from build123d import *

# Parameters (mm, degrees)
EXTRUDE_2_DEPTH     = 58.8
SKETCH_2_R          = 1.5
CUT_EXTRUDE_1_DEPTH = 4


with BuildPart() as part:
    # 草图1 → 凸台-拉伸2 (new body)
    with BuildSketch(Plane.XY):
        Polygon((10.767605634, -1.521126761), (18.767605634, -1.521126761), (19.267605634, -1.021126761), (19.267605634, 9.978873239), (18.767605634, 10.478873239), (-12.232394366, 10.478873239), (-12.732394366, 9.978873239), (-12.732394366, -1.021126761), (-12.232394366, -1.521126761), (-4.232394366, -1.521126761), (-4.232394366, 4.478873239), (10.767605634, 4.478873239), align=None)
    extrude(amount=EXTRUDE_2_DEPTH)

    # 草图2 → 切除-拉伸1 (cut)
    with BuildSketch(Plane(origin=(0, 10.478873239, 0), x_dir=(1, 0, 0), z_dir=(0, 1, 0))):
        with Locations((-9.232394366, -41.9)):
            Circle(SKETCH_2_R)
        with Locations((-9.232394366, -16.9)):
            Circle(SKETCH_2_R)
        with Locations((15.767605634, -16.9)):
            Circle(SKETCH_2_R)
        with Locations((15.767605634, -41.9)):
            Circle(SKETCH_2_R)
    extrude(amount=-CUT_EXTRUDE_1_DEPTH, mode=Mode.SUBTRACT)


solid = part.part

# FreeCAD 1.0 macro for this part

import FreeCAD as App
import Part
import Sketcher
Q = App.Units.Quantity

doc = App.newDocument("Part")
body = doc.addObject("PartDesign::Body", "Body")

# Sketch on XY plane
sketch1 = body.newObject("Sketcher::SketchObject", "Sketch")
sketch1.AttachmentSupport = (doc.getObject("XY_Plane"), [""])
sketch1.MapMode = "FlatFace"
sketch1.addGeometry(Part.LineSegment(App.Vector(10.767606, -1.521127, 0), App.Vector(18.767606, -1.521127, 0)), False)
sketch1.addGeometry(Part.LineSegment(App.Vector(18.767606, -1.521127, 0), App.Vector(19.267606, -1.021127, 0)), False)
sketch1.addGeometry(Part.LineSegment(App.Vector(19.267606, -1.021127, 0), App.Vector(19.267606, 9.978873, 0)), False)
sketch1.addGeometry(Part.LineSegment(App.Vector(19.267606, 9.978873, 0), App.Vector(18.767606, 10.478873, 0)), False)
sketch1.addGeometry(Part.LineSegment(App.Vector(18.767606, 10.478873, 0), App.Vector(-12.232394, 10.478873, 0)), False)
sketch1.addGeometry(Part.LineSegment(App.Vector(-12.232394, 10.478873, 0), App.Vector(-12.732394, 9.978873, 0)), False)
sketch1.addGeometry(Part.LineSegment(App.Vector(-12.732394, 9.978873, 0), App.Vector(-12.732394, -1.021127, 0)), False)
sketch1.addGeometry(Part.LineSegment(App.Vector(-12.732394, -1.021127, 0), App.Vector(-12.232394, -1.521127, 0)), False)
sketch1.addGeometry(Part.LineSegment(App.Vector(-12.232394, -1.521127, 0), App.Vector(-4.232394, -1.521127, 0)), False)
sketch1.addGeometry(Part.LineSegment(App.Vector(-4.232394, -1.521127, 0), App.Vector(-4.232394, 4.478873, 0)), False)
sketch1.addGeometry(Part.LineSegment(App.Vector(-4.232394, 4.478873, 0), App.Vector(10.767606, 4.478873, 0)), False)
sketch1.addGeometry(Part.LineSegment(App.Vector(10.767606, 4.478873, 0), App.Vector(10.767606, -1.521127, 0)), False)
sketch1.addConstraint(Sketcher.Constraint("Coincident", 0, 2, 1, 1))
sketch1.addConstraint(Sketcher.Constraint("Coincident", 1, 2, 2, 1))
sketch1.addConstraint(Sketcher.Constraint("Coincident", 2, 2, 3, 1))
sketch1.addConstraint(Sketcher.Constraint("Coincident", 3, 2, 4, 1))
sketch1.addConstraint(Sketcher.Constraint("Coincident", 4, 2, 5, 1))
sketch1.addConstraint(Sketcher.Constraint("Coincident", 5, 2, 6, 1))
sketch1.addConstraint(Sketcher.Constraint("Coincident", 6, 2, 7, 1))
sketch1.addConstraint(Sketcher.Constraint("Coincident", 7, 2, 8, 1))
sketch1.addConstraint(Sketcher.Constraint("Coincident", 8, 2, 9, 1))
sketch1.addConstraint(Sketcher.Constraint("Coincident", 9, 2, 10, 1))
sketch1.addConstraint(Sketcher.Constraint("Coincident", 10, 2, 11, 1))
sketch1.addConstraint(Sketcher.Constraint("Coincident", 11, 2, 0, 1))
sketch1.addConstraint(Sketcher.Constraint("Horizontal", 0))
sketch1.addConstraint(Sketcher.Constraint("Vertical", 2))
sketch1.addConstraint(Sketcher.Constraint("Horizontal", 4))
sketch1.addConstraint(Sketcher.Constraint("Vertical", 6))
sketch1.addConstraint(Sketcher.Constraint("Horizontal", 8))
sketch1.addConstraint(Sketcher.Constraint("Vertical", 9))
sketch1.addConstraint(Sketcher.Constraint("Horizontal", 10))
sketch1.addConstraint(Sketcher.Constraint("Vertical", 11))
sketch1.addConstraint(Sketcher.Constraint("Perpendicular", 1, 3))
sketch1.addConstraint(Sketcher.Constraint("Perpendicular", 3, 5))
sketch1.addConstraint(Sketcher.Constraint("Perpendicular", 5, 7))
sketch1.addConstraint(Sketcher.Constraint("Horizontal", 2, 2, 5, 2))
sketch1.addConstraint(Sketcher.Constraint("Horizontal", 1, 2, 6, 2))
sketch1.addConstraint(Sketcher.Constraint("Horizontal", 0, 2, 7, 2))
sketch1.addConstraint(Sketcher.Constraint("Vertical", 0, 2, 3, 2))
sketch1.addConstraint(Sketcher.Constraint("Vertical", 4, 2, 7, 2))
sketch1.addConstraint(Sketcher.Constraint("Equal", 0, 8))
sketch1.addConstraint(Sketcher.Constraint("DistanceX", 0, 1, 0, 2, Q("8 mm")))
sketch1.addConstraint(Sketcher.Constraint("DistanceX", 4, 2, 4, 1, Q("31 mm")))
sketch1.addConstraint(Sketcher.Constraint("DistanceY", 2, 1, 2, 2, Q("11 mm")))
sketch1.addConstraint(Sketcher.Constraint("DistanceY", 9, 1, 9, 2, Q("6 mm")))
sketch1.addConstraint(Sketcher.Constraint("DistanceY", 0, 2, 3, 2, Q("12 mm")))
sketch1.addConstraint(Sketcher.Constraint("DistanceX", -1, 1, 0, 2, Q("18.767606 mm")))
sketch1.addConstraint(Sketcher.Constraint("DistanceY", 0, 2, -1, 1, Q("1.521127 mm")))
pad1 = body.newObject("PartDesign::Pad", "Pad")
pad1.Profile = sketch1
pad1.Length = 58.8

# Sketch on XZ plane
sketch2 = body.newObject("Sketcher::SketchObject", "Sketch001")
sketch2.AttachmentSupport = (doc.getObject("XZ_Plane"), [""])
sketch2.MapMode = "FlatFace"
sketch2.AttachmentOffset = App.Placement(App.Vector(0, 0, -10.478873), App.Rotation())
sketch2.addGeometry(Part.Circle(App.Vector(-9.232394, 41.9, 0), App.Vector(0, 0, 1), 1.5), False)
sketch2.addGeometry(Part.Circle(App.Vector(-9.232394, 16.9, 0), App.Vector(0, 0, 1), 1.5), False)
sketch2.addGeometry(Part.Circle(App.Vector(15.767606, 16.9, 0), App.Vector(0, 0, 1), 1.5), False)
sketch2.addGeometry(Part.Circle(App.Vector(15.767606, 41.9, 0), App.Vector(0, 0, 1), 1.5), False)
sketch2.addConstraint(Sketcher.Constraint("Equal", 0, 1))
sketch2.addConstraint(Sketcher.Constraint("Equal", 1, 2))
sketch2.addConstraint(Sketcher.Constraint("Equal", 2, 3))
sketch2.addConstraint(Sketcher.Constraint("Horizontal", 1, 3, 2, 3))
sketch2.addConstraint(Sketcher.Constraint("Horizontal", 0, 3, 3, 3))
sketch2.addConstraint(Sketcher.Constraint("Vertical", 0, 3, 1, 3))
sketch2.addConstraint(Sketcher.Constraint("Vertical", 2, 3, 3, 3))
sketch2.addConstraint(Sketcher.Constraint("Diameter", 0, Q("3 mm")))
sketch2.addConstraint(Sketcher.Constraint("DistanceY", 1, 3, 0, 3, Q("25 mm")))
sketch2.addConstraint(Sketcher.Constraint("DistanceX", 1, 3, 2, 3, Q("25 mm")))
sketch2.addConstraint(Sketcher.Constraint("DistanceY", -1, 1, 0, 3, Q("41.9 mm")))
sketch2.addConstraint(Sketcher.Constraint("DistanceX", 0, 3, -1, 1, Q("9.232394 mm")))
pocket1 = body.newObject("PartDesign::Pocket", "Pocket")
pocket1.Profile = sketch2
pocket1.Length = 4
pocket1.Reversed = True

doc.recompute()
